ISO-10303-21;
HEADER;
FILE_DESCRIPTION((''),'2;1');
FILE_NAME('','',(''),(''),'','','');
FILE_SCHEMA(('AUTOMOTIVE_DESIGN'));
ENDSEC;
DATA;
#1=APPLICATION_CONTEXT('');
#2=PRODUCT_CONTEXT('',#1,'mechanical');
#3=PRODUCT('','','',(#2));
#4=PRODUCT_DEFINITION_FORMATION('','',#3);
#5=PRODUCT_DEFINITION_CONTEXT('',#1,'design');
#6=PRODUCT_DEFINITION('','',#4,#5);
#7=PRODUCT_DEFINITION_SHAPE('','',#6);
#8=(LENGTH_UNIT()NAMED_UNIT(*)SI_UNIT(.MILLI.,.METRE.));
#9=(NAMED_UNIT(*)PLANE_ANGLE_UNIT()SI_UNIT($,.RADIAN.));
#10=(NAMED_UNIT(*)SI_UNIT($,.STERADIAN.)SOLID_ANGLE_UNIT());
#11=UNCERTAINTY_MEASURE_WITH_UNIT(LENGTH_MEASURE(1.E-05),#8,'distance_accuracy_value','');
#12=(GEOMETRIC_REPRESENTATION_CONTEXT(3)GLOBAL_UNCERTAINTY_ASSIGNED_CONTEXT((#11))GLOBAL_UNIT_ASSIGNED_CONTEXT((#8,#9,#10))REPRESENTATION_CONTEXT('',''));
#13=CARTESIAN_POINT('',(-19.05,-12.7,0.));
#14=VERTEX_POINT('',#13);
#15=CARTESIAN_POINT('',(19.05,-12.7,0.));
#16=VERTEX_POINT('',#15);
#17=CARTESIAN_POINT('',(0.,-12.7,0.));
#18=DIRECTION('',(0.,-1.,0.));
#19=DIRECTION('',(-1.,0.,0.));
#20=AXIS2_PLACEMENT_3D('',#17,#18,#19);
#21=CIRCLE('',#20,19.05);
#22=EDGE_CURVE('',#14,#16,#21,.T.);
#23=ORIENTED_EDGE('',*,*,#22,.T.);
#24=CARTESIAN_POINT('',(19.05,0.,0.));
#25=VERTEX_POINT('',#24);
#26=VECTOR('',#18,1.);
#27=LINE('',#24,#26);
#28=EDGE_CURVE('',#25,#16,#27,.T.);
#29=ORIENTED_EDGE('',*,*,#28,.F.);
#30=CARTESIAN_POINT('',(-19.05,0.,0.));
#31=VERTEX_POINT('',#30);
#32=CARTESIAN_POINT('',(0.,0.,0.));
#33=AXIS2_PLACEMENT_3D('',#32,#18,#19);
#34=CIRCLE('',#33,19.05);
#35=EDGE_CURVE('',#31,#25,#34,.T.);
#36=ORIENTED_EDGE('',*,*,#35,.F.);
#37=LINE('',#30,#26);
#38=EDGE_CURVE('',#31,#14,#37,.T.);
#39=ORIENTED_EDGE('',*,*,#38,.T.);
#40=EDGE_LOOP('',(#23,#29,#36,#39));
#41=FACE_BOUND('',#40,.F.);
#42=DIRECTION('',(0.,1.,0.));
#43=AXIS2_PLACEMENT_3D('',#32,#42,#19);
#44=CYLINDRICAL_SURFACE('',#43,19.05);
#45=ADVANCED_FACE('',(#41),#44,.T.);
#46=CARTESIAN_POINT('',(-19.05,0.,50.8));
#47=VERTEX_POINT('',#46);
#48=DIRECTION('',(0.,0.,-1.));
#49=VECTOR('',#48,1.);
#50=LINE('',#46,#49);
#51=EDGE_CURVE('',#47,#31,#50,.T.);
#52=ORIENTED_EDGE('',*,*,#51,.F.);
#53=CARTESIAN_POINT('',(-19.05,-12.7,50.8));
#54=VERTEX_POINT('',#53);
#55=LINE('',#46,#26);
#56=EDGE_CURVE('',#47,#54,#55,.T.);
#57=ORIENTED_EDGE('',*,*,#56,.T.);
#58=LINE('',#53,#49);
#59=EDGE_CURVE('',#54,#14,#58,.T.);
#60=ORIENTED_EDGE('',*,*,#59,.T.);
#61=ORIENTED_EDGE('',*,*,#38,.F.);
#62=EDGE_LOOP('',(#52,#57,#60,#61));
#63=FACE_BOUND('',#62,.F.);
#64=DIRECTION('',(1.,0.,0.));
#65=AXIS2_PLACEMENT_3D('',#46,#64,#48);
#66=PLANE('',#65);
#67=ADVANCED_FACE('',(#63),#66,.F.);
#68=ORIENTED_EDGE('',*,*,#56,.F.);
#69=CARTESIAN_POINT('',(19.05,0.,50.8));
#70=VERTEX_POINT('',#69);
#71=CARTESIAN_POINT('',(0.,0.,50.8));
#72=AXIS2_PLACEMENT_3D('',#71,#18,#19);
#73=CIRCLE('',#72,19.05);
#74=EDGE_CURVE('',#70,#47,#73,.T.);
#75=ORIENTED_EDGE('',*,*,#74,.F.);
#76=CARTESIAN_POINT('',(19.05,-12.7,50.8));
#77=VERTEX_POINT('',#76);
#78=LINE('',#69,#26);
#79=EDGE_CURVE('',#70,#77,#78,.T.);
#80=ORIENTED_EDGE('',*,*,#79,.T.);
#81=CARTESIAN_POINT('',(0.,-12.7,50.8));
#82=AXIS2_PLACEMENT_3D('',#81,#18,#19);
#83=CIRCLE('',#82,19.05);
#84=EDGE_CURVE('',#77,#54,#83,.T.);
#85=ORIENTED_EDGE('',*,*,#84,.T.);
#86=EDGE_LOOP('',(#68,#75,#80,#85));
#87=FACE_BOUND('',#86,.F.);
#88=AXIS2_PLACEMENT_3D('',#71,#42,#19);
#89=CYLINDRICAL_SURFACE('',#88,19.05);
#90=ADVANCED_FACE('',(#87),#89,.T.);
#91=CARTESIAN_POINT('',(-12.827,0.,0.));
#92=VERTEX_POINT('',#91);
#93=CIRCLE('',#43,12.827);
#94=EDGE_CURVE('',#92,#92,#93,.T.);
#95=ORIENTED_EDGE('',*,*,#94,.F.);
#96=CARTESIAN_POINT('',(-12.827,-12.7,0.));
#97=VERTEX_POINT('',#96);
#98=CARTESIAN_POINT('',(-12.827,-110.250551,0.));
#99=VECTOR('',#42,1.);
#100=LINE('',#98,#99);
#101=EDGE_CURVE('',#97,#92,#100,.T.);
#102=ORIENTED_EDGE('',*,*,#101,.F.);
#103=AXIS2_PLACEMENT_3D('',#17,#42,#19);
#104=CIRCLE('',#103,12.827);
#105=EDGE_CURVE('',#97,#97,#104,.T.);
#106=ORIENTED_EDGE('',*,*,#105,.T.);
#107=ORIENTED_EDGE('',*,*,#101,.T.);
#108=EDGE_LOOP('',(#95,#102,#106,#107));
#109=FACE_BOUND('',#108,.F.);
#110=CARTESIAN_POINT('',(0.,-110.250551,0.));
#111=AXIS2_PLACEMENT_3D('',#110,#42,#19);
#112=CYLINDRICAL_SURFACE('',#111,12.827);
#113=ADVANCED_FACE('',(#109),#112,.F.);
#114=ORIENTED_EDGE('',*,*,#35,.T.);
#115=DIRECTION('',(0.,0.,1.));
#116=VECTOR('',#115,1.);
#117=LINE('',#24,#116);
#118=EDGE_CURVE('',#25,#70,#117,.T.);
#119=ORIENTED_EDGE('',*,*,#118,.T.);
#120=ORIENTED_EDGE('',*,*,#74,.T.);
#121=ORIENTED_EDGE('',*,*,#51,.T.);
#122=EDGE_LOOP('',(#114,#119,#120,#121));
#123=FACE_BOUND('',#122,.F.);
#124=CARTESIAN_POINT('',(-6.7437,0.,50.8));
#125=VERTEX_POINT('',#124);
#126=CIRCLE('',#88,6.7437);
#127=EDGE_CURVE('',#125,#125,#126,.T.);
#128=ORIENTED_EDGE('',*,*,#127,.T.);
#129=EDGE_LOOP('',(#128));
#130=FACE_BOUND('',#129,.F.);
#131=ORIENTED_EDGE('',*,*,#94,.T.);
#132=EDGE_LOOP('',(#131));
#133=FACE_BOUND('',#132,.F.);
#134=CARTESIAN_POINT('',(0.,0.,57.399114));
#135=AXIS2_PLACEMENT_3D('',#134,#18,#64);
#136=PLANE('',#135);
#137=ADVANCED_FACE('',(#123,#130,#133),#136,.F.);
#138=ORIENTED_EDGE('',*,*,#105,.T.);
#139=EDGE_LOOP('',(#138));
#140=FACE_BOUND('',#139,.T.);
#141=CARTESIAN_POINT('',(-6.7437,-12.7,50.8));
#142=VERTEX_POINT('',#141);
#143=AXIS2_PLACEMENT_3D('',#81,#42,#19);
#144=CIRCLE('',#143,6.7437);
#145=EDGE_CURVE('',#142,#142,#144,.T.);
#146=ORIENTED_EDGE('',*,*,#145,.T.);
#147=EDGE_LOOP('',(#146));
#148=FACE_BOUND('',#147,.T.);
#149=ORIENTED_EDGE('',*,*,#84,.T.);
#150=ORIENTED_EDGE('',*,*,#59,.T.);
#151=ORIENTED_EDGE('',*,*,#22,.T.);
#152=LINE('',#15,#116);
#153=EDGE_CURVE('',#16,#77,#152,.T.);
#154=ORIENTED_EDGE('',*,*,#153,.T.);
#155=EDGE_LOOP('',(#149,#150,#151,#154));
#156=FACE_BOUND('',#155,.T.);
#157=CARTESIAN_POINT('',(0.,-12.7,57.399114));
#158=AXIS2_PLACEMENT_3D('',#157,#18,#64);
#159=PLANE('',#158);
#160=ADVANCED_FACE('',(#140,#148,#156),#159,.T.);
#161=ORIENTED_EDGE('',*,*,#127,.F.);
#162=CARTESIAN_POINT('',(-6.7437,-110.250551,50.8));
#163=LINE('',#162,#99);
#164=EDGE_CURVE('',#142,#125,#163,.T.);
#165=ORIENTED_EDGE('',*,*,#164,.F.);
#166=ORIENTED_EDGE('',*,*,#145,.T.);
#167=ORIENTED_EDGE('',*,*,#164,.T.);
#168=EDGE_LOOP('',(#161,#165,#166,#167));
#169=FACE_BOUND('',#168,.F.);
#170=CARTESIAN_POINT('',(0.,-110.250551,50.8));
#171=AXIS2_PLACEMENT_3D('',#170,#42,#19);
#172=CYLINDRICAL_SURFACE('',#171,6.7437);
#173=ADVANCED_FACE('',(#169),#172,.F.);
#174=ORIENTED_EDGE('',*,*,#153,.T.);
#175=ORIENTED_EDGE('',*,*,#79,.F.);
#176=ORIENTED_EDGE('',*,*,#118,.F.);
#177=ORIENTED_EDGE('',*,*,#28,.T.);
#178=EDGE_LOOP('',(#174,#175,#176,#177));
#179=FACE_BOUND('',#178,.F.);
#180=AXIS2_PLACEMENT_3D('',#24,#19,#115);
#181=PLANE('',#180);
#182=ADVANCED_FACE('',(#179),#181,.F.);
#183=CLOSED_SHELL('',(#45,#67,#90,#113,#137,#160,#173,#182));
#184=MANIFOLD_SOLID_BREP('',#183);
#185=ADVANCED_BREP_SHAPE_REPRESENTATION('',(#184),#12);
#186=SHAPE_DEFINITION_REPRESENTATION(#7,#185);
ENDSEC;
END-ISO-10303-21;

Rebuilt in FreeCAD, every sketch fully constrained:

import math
import FreeCAD as App
import Part
import Sketcher
Q = App.Units.Quantity

doc = App.newDocument("Part")
body = doc.addObject("PartDesign::Body", "Body")

# Sketch on XZ plane
sketch1 = body.newObject("Sketcher::SketchObject", "Sketch")
sketch1.AttachmentSupport = (doc.getObject("XZ_Plane"), [""])
sketch1.MapMode = "FlatFace"
sketch1.addGeometry([
    Part.ArcOfCircle(Part.Circle(App.Vector(0, 51, 0), App.Vector(0, 0, 1), 19), math.radians(0), math.radians(180)),
    Part.LineSegment(App.Vector(-19, 51, 0), App.Vector(-19, 0, 0)),
    Part.ArcOfCircle(Part.Circle(App.Vector(0, 0, 0), App.Vector(0, 0, 1), 19), math.radians(180), math.radians(360)),
    Part.LineSegment(App.Vector(19, 0, 0), App.Vector(19, 51, 0)),
], False)
sketch1.addConstraint([
    Sketcher.Constraint("Tangent", 0, 2, 1, 1),
    Sketcher.Constraint("Tangent", 1, 2, 2, 1),
    Sketcher.Constraint("Tangent", 2, 2, 3, 1),
    Sketcher.Constraint("Tangent", 3, 2, 0, 1),
    Sketcher.Constraint("Vertical", 1),
    Sketcher.Constraint("Vertical", 3),
    Sketcher.Constraint("Coincident", 2, 3, -1, 1),
    Sketcher.Constraint("DistanceY", 1, 2, 1, 1, Q("2 in")),
    Sketcher.Constraint("Radius", 0, Q("0.75 in")),
])
pad1 = body.newObject("PartDesign::Pad", "Pad")
pad1.Profile = sketch1
pad1.Length = Q("0.5 in")

# Sketch on XZ plane
sketch2 = body.newObject("Sketcher::SketchObject", "Sketch001")
sketch2.AttachmentSupport = (doc.getObject("XZ_Plane"), [""])
sketch2.MapMode = "FlatFace"
sketch2.AttachmentOffset = App.Placement(App.Vector(0, 0, 0.5 * 25.4), App.Rotation())
sketch2.addGeometry(Part.Circle(App.Vector(0, 51, 0), App.Vector(0, 0, 1), 7), False)
sketch2.addConstraint([
    Sketcher.Constraint("PointOnObject", 0, 3, -2),
    Sketcher.Constraint("Diameter", 0, Q("0.531 in")),
    Sketcher.Constraint("DistanceY", -1, 1, 0, 3, Q("2 in")),
])
doc.recompute()
hole = body.newObject("PartDesign::Hole", "Hole")
hole.Profile = sketch2
hole.ThreadType = "None"
hole.Diameter = Q("0.531 in")
hole.DepthType = "ThroughAll"

# Sketch on XZ plane
sketch3 = body.newObject("Sketcher::SketchObject", "Sketch002")
sketch3.AttachmentSupport = (doc.getObject("XZ_Plane"), [""])
sketch3.MapMode = "FlatFace"
sketch3.AttachmentOffset = App.Placement(App.Vector(0, 0, 0.5 * 25.4), App.Rotation())
sketch3.addGeometry(Part.Circle(App.Vector(0, 0, 0), App.Vector(0, 0, 1), 13), False)
sketch3.addConstraint([
    Sketcher.Constraint("Coincident", 0, 3, -1, 1),
    Sketcher.Constraint("Diameter", 0, Q("1.01 in")),
])
doc.recompute()
hole2 = body.newObject("PartDesign::Hole", "Hole001")
hole2.Profile = sketch3
hole2.ThreadType = "None"
hole2.Diameter = Q("1.01 in")
hole2.DepthType = "ThroughAll"

doc.recompute()
